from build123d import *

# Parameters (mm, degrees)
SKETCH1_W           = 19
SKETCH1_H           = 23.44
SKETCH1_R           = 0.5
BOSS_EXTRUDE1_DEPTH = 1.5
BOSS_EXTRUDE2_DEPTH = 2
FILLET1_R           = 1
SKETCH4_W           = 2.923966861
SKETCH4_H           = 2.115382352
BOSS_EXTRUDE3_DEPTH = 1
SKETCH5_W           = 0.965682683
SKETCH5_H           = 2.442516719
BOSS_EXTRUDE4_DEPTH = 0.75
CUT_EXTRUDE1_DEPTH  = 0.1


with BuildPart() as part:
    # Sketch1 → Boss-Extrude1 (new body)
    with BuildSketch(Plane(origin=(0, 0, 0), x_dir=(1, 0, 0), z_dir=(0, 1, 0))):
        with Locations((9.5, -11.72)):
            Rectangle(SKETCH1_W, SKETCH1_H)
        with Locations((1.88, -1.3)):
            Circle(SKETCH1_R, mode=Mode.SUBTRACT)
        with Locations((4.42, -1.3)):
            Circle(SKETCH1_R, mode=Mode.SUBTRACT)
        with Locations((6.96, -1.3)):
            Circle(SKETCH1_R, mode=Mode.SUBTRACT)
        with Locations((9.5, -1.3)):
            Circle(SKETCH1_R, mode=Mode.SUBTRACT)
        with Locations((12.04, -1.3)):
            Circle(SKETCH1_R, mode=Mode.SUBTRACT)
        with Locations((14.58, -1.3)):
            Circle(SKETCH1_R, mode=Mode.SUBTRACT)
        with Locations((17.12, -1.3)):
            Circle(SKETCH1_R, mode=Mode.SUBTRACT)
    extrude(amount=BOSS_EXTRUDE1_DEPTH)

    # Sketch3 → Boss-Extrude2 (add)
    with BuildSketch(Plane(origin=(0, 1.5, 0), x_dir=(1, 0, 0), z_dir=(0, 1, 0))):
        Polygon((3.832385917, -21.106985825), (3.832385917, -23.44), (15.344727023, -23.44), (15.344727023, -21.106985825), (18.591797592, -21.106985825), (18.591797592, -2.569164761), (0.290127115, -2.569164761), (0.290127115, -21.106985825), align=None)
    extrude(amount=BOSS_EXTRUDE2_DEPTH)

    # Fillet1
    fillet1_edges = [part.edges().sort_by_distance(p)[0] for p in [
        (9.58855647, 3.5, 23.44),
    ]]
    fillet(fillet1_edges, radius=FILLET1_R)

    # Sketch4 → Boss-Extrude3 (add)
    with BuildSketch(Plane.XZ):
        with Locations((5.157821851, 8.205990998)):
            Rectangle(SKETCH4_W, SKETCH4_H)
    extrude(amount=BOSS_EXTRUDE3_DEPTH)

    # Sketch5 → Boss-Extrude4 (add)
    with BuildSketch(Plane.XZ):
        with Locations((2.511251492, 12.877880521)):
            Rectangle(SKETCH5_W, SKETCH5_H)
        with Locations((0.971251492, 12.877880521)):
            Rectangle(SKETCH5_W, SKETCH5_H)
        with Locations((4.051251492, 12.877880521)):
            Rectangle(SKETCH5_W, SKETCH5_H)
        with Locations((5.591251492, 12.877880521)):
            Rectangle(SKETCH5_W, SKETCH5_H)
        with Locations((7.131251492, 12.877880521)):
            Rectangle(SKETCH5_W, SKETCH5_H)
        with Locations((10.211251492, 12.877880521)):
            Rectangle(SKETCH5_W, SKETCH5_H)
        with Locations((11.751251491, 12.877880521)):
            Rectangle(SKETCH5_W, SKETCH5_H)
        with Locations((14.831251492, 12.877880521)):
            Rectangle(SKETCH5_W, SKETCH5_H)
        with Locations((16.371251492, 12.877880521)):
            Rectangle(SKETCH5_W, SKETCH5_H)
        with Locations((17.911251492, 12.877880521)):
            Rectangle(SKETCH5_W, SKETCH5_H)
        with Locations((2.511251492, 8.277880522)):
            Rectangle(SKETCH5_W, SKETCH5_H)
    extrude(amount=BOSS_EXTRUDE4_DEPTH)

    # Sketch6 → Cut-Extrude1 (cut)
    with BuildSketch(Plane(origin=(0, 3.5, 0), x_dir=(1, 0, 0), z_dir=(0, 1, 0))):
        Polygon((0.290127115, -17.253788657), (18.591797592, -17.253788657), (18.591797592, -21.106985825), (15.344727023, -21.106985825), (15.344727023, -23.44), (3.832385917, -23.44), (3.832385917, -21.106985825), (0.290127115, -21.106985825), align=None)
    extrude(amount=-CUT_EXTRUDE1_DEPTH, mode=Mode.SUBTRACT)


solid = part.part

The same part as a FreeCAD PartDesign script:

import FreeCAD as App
import Part
import Sketcher
from FreeCAD import Vector
Q = App.Units.Quantity


def edges_at(feature, points):
    """Names of the edges that pass closest to the given points."""
    edges = feature.Shape.Edges
    near = lambda p: min(range(len(edges)), key=lambda i: edges[i].distToShape(Part.Vertex(*p))[0])
    return sorted({f"Edge{near(p) + 1}" for p in points})


def add_polygon(sketch, points):
    """Adds a closed chain of lines whose ends are joined by coincident constraints."""
    first, n = sketch.GeometryCount, len(points)
    for a, b in zip(points, points[1:] + points[:1]):
        sketch.addGeometry(Part.LineSegment(App.Vector(*a, 0), App.Vector(*b, 0)), False)
    for i in range(n):
        sketch.addConstraint(Sketcher.Constraint("Coincident", first + i, 2, first + (i + 1) % n, 1))

doc = App.newDocument("Part")
body = doc.addObject("PartDesign::Body", "Body")

sketch1 = body.newObject("Sketcher::SketchObject", "Sketch")
sketch1.AttachmentSupport = (doc.getObject("XZ_Plane"), [""])
sketch1.MapMode = "FlatFace"
add_polygon(sketch1, [(0, 0), (0, 23.4), (19, 23.4), (19, 0)])
sketch1.addGeometry(Part.Circle(Vector(1.9, 1.3, 0), Vector(0, 0, 1), 0.5), False)
sketch1.addGeometry(Part.Circle(Vector(4.4, 1.3, 0), Vector(0, 0, 1), 0.5), False)
sketch1.addGeometry(Part.Circle(Vector(7, 1.3, 0), Vector(0, 0, 1), 0.5), False)
sketch1.addGeometry(Part.Circle(Vector(9.5, 1.3, 0), Vector(0, 0, 1), 0.5), False)
sketch1.addGeometry(Part.Circle(Vector(12, 1.3, 0), Vector(0, 0, 1), 0.5), False)
sketch1.addGeometry(Part.Circle(Vector(14.6, 1.3, 0), Vector(0, 0, 1), 0.5), False)
sketch1.addGeometry(Part.Circle(Vector(17.1, 1.3, 0), Vector(0, 0, 1), 0.5), False)
sketch1.addConstraint([
    Sketcher.Constraint("Vertical", 0),
    Sketcher.Constraint("Horizontal", 1),
    Sketcher.Constraint("Vertical", 2),
    Sketcher.Constraint("Horizontal", 3),
    Sketcher.Constraint("Coincident", 3, 2, -1, 1),
    Sketcher.Constraint("Equal", 4, 5),
    Sketcher.Constraint("Equal", 5, 6),
    Sketcher.Constraint("Equal", 6, 7),
    Sketcher.Constraint("Equal", 7, 8),
    Sketcher.Constraint("Equal", 8, 9),
    Sketcher.Constraint("Equal", 9, 10),
    Sketcher.Constraint("Horizontal", 4, 3, 5, 3),
    Sketcher.Constraint("Horizontal", 5, 3, 6, 3),
    Sketcher.Constraint("Horizontal", 6, 3, 7, 3),
    Sketcher.Constraint("Horizontal", 7, 3, 8, 3),
    Sketcher.Constraint("Horizontal", 8, 3, 9, 3),
    Sketcher.Constraint("Horizontal", 9, 3, 10, 3),
    Sketcher.Constraint("Diameter", 4, Q("1 mm")),
    Sketcher.Constraint("DistanceX", 1, 1, 1, 2, Q("19 mm")),
    Sketcher.Constraint("DistanceY", 0, 1, 0, 2, Q("23.44 mm")),
    Sketcher.Constraint("DistanceY", -1, 1, 4, 3, Q("1.3 mm")),
    Sketcher.Constraint("DistanceX", -1, 1, 7, 3, Q("9.5 mm")),
    Sketcher.Constraint("DistanceX", 4, 3, 9, 3, Q("12.7 mm")),
    Sketcher.Constraint("DistanceX", 5, 3, 10, 3, Q("12.7 mm")),
    Sketcher.Constraint("DistanceX", -1, 1, 4, 3, Q("1.88 mm")),
    Sketcher.Constraint("DistanceX", -1, 1, 5, 3, Q("4.42 mm")),
    Sketcher.Constraint("DistanceX", -1, 1, 6, 3, Q("6.96 mm")),
    Sketcher.Constraint("DistanceX", -1, 1, 8, 3, Q("12.04 mm")),
])
pad1 = body.newObject("PartDesign::Pad", "Pad")
pad1.Profile = sketch1
pad1.Length = 1.5
pad1.Reversed = True

sketch2 = body.newObject("Sketcher::SketchObject", "Sketch001")
sketch2.AttachmentSupport = (doc.getObject("XZ_Plane"), [""])
sketch2.MapMode = "FlatFace"
sketch2.AttachmentOffset = App.Placement(Vector(0, 0, -1.5), App.Rotation())
add_polygon(sketch2, [(3.8, 21.1), (3.8, 23.4), (15.3, 23.4), (15.3, 21.1), (18.6, 21.1), (18.6, 2.6), (0.3, 2.6), (0.3, 21.1)])
sketch2.addConstraint([
    Sketcher.Constraint("Vertical", 0),
    Sketcher.Constraint("Horizontal", 1),
    Sketcher.Constraint("Vertical", 2),
    Sketcher.Constraint("Horizontal", 3),
    Sketcher.Constraint("Vertical", 4),
    Sketcher.Constraint("Horizontal", 5),
    Sketcher.Constraint("Vertical", 6),
    Sketcher.Constraint("Horizontal", 7),
    Sketcher.Constraint("Horizontal", 3, 2, 6, 2),
    Sketcher.Constraint("DistanceY", -1, 1, 0, 2, Q("23.44 mm")),
    Sketcher.Constraint("DistanceX", 1, 1, 1, 2, Q("11.512341 mm")),
    Sketcher.Constraint("DistanceX", 3, 1, 3, 2, Q("3.247071 mm")),
    Sketcher.Constraint("DistanceX", 5, 2, 5, 1, Q("18.30167 mm")),
    Sketcher.Constraint("DistanceY", 4, 2, 4, 1, Q("18.537821 mm")),
    Sketcher.Constraint("DistanceY", 0, 1, 0, 2, Q("2.333014 mm")),
    Sketcher.Constraint("DistanceX", -1, 1, 0, 2, Q("3.832386 mm")),
])
pad2 = body.newObject("PartDesign::Pad", "Pad001")
pad2.Profile = sketch2
pad2.Length = 2
pad2.Reversed = True
doc.recompute()

fillet = body.newObject("PartDesign::Fillet", "Fillet")
fillet.Base = (pad2, edges_at(pad2, [(9.589, 3.5, 23.44)]))
fillet.Radius = 1

sketch3 = body.newObject("Sketcher::SketchObject", "Sketch002")
sketch3.AttachmentSupport = (doc.getObject("XZ_Plane"), [""])
sketch3.MapMode = "FlatFace"
add_polygon(sketch3, [(3.7, 9.3), (3.7, 7.1), (6.6, 7.1), (6.6, 9.3)])
sketch3.addConstraint([
    Sketcher.Constraint("Vertical", 0),
    Sketcher.Constraint("Horizontal", 1),
    Sketcher.Constraint("Vertical", 2),
    Sketcher.Constraint("Horizontal", 3),
    Sketcher.Constraint("DistanceY", -1, 1, 0, 2, Q("7.1483 mm")),
    Sketcher.Constraint("DistanceX", 1, 1, 1, 2, Q("2.923967 mm")),
    Sketcher.Constraint("DistanceY", 0, 2, 0, 1, Q("2.115382 mm")),
    Sketcher.Constraint("DistanceX", -1, 1, 0, 2, Q("3.695838 mm")),
])
pad3 = body.newObject("PartDesign::Pad", "Pad002")
pad3.Profile = sketch3
pad3.Length = 1

sketch4 = body.newObject("Sketcher::SketchObject", "Sketch003")
sketch4.AttachmentSupport = (doc.getObject("XZ_Plane"), [""])
sketch4.MapMode = "FlatFace"
add_polygon(sketch4, [(2, 14.1), (2, 11.7), (3, 11.7), (3, 14.1)])
add_polygon(sketch4, [(0.5, 14.1), (0.5, 11.7), (1.5, 11.7), (1.5, 14.1)])
add_polygon(sketch4, [(3.6, 14.1), (3.6, 11.7), (4.5, 11.7), (4.5, 14.1)])
add_polygon(sketch4, [(5.1, 14.1), (5.1, 11.7), (6.1, 11.7), (6.1, 14.1)])
add_polygon(sketch4, [(6.6, 14.1), (6.6, 11.7), (7.6, 11.7), (7.6, 14.1)])
add_polygon(sketch4, [(9.7, 14.1), (9.7, 11.7), (10.7, 11.7), (10.7, 14.1)])
add_polygon(sketch4, [(11.3, 14.1), (11.3, 11.7), (12.2, 11.7), (12.2, 14.1)])
add_polygon(sketch4, [(14.3, 14.1), (14.3, 11.7), (15.3, 11.7), (15.3, 14.1)])
add_polygon(sketch4, [(15.9, 14.1), (15.9, 11.7), (16.9, 11.7), (16.9, 14.1)])
add_polygon(sketch4, [(17.4, 14.1), (17.4, 11.7), (18.4, 11.7), (18.4, 14.1)])
add_polygon(sketch4, [(2, 9.5), (2, 7.1), (3, 7.1), (3, 9.5)])
sketch4.addConstraint([
    Sketcher.Constraint("Vertical", 0),
    Sketcher.Constraint("Horizontal", 1),
    Sketcher.Constraint("Vertical", 2),
    Sketcher.Constraint("Horizontal", 3),
    Sketcher.Constraint("Vertical", 4),
    Sketcher.Constraint("Horizontal", 5),
    Sketcher.Constraint("Vertical", 6),
    Sketcher.Constraint("Horizontal", 7),
    Sketcher.Constraint("Vertical", 8),
    Sketcher.Constraint("Horizontal", 9),
    Sketcher.Constraint("Vertical", 10),
    Sketcher.Constraint("Horizontal", 11),
    Sketcher.Constraint("Vertical", 12),
    Sketcher.Constraint("Horizontal", 13),
    Sketcher.Constraint("Vertical", 14),
    Sketcher.Constraint("Horizontal", 15),
    Sketcher.Constraint("Vertical", 16),
    Sketcher.Constraint("Horizontal", 17),
    Sketcher.Constraint("Vertical", 18),
    Sketcher.Constraint("Horizontal", 19),
    Sketcher.Constraint("Vertical", 20),
    Sketcher.Constraint("Horizontal", 21),
    Sketcher.Constraint("Vertical", 22),
    Sketcher.Constraint("Horizontal", 23),
    Sketcher.Constraint("Vertical", 24),
    Sketcher.Constraint("Horizontal", 25),
    Sketcher.Constraint("Vertical", 26),
    Sketcher.Constraint("Horizontal", 27),
    Sketcher.Constraint("Vertical", 28),
    Sketcher.Constraint("Horizontal", 29),
    Sketcher.Constraint("Vertical", 30),
    Sketcher.Constraint("Horizontal", 31),
    Sketcher.Constraint("Vertical", 32),
    Sketcher.Constraint("Horizontal", 33),
    Sketcher.Constraint("Vertical", 34),
    Sketcher.Constraint("Horizontal", 35),
    Sketcher.Constraint("Vertical", 36),
    Sketcher.Constraint("Horizontal", 37),
    Sketcher.Constraint("Vertical", 38),
    Sketcher.Constraint("Horizontal", 39),
    Sketcher.Constraint("Vertical", 40),
    Sketcher.Constraint("Horizontal", 41),
    Sketcher.Constraint("Vertical", 42),
    Sketcher.Constraint("Horizontal", 43),
    Sketcher.Constraint("Horizontal", 1, 2, 4, 2),
    Sketcher.Constraint("Horizontal", 3, 2, 6, 2),
    Sketcher.Constraint("Horizontal", 5, 2, 8, 2),
    Sketcher.Constraint("Horizontal", 7, 2, 10, 2),
    Sketcher.Constraint("Horizontal", 9, 2, 12, 2),
    Sketcher.Constraint("Horizontal", 11, 2, 14, 2),
    Sketcher.Constraint("Horizontal", 13, 2, 16, 2),
    Sketcher.Constraint("Horizontal", 15, 2, 18, 2),
    Sketcher.Constraint("Horizontal", 17, 2, 20, 2),
    Sketcher.Constraint("Horizontal", 19, 2, 22, 2),
    Sketcher.Constraint("Horizontal", 21, 2, 24, 2),
    Sketcher.Constraint("Horizontal", 23, 2, 26, 2),
    Sketcher.Constraint("Horizontal", 25, 2, 28, 2),
    Sketcher.Constraint("Horizontal", 27, 2, 30, 2),
    Sketcher.Constraint("Horizontal", 29, 2, 32, 2),
    Sketcher.Constraint("Horizontal", 31, 2, 34, 2),
    Sketcher.Constraint("Horizontal", 33, 2, 36, 2),
    Sketcher.Constraint("Horizontal", 35, 2, 38, 2),
    Sketcher.Constraint("Vertical", 3, 2, 40, 2),
    Sketcher.Constraint("Vertical", 2, 2, 41, 2),
    Sketcher.Constraint("Equal", 3, 5),
    Sketcher.Constraint("Equal", 7, 9),
    Sketcher.Constraint("Equal", 11, 13),
    Sketcher.Constraint("Equal", 15, 17),
    Sketcher.Constraint("Equal", 19, 21),
    Sketcher.Constraint("Equal", 23, 25),
    Sketcher.Constraint("Equal", 27, 29),
    Sketcher.Constraint("Equal", 31, 33),
    Sketcher.Constraint("Equal", 35, 37),
    Sketcher.Constraint("Equal", 38, 40),
    Sketcher.Constraint("DistanceY", 40, 2, 0, 2, Q("4.6 mm")),
    Sketcher.Constraint("DistanceX", 4, 2, 0, 2, Q("1.54 mm")),
    Sketcher.Constraint("DistanceX", 0, 2, 8, 2, Q("1.54 mm")),
    Sketcher.Constraint("DistanceX", 8, 2, 12, 2, Q("1.54 mm")),
    Sketcher.Constraint("DistanceX", 12, 2, 16, 2, Q("1.54 mm")),
    Sketcher.Constraint("DistanceX", 16, 2, 20, 2, Q("3.08 mm")),
    Sketcher.Constraint("DistanceX", 20, 2, 24, 2, Q("1.54 mm")),
    Sketcher.Constraint("DistanceX", 24, 2, 28, 2, Q("3.08 mm")),
    Sketcher.Constraint("DistanceX", 28, 2, 32, 2, Q("1.54 mm")),
    Sketcher.Constraint("DistanceX", 32, 2, 36, 2, Q("1.54 mm")),
    Sketcher.Constraint("DistanceX", 1, 1, 1, 2, Q("0.965683 mm")),
    Sketcher.Constraint("DistanceY", 0, 2, 0, 1, Q("2.442517 mm")),
    Sketcher.Constraint("DistanceX", -1, 1, 0, 2, Q("2.02841 mm")),
    Sketcher.Constraint("DistanceY", -1, 1, 2, 2, Q("14.099139 mm")),
])
pad4 = body.newObject("PartDesign::Pad", "Pad003")
pad4.Profile = sketch4
pad4.Length = 0.75

sketch5 = body.newObject("Sketcher::SketchObject", "Sketch004")
sketch5.AttachmentSupport = (doc.getObject("XZ_Plane"), [""])
sketch5.MapMode = "FlatFace"
sketch5.AttachmentOffset = App.Placement(Vector(0, 0, -3.5), App.Rotation())
add_polygon(sketch5, [(18.6, 17.3), (0.3, 17.3), (0.3, 21.1), (3.8, 21.1), (3.8, 23.4), (15.3, 23.4), (15.3, 21.1), (18.6, 21.1)])
sketch5.addConstraint([
    Sketcher.Constraint("Horizontal", 0),
    Sketcher.Constraint("Vertical", 1),
    Sketcher.Constraint("Horizontal", 2),
    Sketcher.Constraint("Vertical", 3),
    Sketcher.Constraint("Horizontal", 4),
    Sketcher.Constraint("Vertical", 5),
    Sketcher.Constraint("Horizontal", 6),
    Sketcher.Constraint("Vertical", 7),
    Sketcher.Constraint("Horizontal", 2, 2, 5, 2),
    Sketcher.Constraint("DistanceY", -1, 1, 3, 2, Q("23.44 mm")),
    Sketcher.Constraint("DistanceX", 0, 2, 0, 1, Q("18.30167 mm")),
    Sketcher.Constraint("DistanceX", 2, 1, 2, 2, Q("3.542259 mm")),
    Sketcher.Constraint("DistanceX", 4, 1, 4, 2, Q("11.512341 mm")),
    Sketcher.Constraint("DistanceY", 1, 1, 1, 2, Q("3.853197 mm")),
    Sketcher.Constraint("DistanceY", 3, 1, 3, 2, Q("2.333014 mm")),
    Sketcher.Constraint("DistanceX", -1, 1, 0, 2, Q("0.290127 mm")),
])
pocket1 = body.newObject("PartDesign::Pocket", "Pocket")
pocket1.Profile = sketch5
pocket1.Length = 0.1
pocket1.Reversed = True

doc.recompute()
